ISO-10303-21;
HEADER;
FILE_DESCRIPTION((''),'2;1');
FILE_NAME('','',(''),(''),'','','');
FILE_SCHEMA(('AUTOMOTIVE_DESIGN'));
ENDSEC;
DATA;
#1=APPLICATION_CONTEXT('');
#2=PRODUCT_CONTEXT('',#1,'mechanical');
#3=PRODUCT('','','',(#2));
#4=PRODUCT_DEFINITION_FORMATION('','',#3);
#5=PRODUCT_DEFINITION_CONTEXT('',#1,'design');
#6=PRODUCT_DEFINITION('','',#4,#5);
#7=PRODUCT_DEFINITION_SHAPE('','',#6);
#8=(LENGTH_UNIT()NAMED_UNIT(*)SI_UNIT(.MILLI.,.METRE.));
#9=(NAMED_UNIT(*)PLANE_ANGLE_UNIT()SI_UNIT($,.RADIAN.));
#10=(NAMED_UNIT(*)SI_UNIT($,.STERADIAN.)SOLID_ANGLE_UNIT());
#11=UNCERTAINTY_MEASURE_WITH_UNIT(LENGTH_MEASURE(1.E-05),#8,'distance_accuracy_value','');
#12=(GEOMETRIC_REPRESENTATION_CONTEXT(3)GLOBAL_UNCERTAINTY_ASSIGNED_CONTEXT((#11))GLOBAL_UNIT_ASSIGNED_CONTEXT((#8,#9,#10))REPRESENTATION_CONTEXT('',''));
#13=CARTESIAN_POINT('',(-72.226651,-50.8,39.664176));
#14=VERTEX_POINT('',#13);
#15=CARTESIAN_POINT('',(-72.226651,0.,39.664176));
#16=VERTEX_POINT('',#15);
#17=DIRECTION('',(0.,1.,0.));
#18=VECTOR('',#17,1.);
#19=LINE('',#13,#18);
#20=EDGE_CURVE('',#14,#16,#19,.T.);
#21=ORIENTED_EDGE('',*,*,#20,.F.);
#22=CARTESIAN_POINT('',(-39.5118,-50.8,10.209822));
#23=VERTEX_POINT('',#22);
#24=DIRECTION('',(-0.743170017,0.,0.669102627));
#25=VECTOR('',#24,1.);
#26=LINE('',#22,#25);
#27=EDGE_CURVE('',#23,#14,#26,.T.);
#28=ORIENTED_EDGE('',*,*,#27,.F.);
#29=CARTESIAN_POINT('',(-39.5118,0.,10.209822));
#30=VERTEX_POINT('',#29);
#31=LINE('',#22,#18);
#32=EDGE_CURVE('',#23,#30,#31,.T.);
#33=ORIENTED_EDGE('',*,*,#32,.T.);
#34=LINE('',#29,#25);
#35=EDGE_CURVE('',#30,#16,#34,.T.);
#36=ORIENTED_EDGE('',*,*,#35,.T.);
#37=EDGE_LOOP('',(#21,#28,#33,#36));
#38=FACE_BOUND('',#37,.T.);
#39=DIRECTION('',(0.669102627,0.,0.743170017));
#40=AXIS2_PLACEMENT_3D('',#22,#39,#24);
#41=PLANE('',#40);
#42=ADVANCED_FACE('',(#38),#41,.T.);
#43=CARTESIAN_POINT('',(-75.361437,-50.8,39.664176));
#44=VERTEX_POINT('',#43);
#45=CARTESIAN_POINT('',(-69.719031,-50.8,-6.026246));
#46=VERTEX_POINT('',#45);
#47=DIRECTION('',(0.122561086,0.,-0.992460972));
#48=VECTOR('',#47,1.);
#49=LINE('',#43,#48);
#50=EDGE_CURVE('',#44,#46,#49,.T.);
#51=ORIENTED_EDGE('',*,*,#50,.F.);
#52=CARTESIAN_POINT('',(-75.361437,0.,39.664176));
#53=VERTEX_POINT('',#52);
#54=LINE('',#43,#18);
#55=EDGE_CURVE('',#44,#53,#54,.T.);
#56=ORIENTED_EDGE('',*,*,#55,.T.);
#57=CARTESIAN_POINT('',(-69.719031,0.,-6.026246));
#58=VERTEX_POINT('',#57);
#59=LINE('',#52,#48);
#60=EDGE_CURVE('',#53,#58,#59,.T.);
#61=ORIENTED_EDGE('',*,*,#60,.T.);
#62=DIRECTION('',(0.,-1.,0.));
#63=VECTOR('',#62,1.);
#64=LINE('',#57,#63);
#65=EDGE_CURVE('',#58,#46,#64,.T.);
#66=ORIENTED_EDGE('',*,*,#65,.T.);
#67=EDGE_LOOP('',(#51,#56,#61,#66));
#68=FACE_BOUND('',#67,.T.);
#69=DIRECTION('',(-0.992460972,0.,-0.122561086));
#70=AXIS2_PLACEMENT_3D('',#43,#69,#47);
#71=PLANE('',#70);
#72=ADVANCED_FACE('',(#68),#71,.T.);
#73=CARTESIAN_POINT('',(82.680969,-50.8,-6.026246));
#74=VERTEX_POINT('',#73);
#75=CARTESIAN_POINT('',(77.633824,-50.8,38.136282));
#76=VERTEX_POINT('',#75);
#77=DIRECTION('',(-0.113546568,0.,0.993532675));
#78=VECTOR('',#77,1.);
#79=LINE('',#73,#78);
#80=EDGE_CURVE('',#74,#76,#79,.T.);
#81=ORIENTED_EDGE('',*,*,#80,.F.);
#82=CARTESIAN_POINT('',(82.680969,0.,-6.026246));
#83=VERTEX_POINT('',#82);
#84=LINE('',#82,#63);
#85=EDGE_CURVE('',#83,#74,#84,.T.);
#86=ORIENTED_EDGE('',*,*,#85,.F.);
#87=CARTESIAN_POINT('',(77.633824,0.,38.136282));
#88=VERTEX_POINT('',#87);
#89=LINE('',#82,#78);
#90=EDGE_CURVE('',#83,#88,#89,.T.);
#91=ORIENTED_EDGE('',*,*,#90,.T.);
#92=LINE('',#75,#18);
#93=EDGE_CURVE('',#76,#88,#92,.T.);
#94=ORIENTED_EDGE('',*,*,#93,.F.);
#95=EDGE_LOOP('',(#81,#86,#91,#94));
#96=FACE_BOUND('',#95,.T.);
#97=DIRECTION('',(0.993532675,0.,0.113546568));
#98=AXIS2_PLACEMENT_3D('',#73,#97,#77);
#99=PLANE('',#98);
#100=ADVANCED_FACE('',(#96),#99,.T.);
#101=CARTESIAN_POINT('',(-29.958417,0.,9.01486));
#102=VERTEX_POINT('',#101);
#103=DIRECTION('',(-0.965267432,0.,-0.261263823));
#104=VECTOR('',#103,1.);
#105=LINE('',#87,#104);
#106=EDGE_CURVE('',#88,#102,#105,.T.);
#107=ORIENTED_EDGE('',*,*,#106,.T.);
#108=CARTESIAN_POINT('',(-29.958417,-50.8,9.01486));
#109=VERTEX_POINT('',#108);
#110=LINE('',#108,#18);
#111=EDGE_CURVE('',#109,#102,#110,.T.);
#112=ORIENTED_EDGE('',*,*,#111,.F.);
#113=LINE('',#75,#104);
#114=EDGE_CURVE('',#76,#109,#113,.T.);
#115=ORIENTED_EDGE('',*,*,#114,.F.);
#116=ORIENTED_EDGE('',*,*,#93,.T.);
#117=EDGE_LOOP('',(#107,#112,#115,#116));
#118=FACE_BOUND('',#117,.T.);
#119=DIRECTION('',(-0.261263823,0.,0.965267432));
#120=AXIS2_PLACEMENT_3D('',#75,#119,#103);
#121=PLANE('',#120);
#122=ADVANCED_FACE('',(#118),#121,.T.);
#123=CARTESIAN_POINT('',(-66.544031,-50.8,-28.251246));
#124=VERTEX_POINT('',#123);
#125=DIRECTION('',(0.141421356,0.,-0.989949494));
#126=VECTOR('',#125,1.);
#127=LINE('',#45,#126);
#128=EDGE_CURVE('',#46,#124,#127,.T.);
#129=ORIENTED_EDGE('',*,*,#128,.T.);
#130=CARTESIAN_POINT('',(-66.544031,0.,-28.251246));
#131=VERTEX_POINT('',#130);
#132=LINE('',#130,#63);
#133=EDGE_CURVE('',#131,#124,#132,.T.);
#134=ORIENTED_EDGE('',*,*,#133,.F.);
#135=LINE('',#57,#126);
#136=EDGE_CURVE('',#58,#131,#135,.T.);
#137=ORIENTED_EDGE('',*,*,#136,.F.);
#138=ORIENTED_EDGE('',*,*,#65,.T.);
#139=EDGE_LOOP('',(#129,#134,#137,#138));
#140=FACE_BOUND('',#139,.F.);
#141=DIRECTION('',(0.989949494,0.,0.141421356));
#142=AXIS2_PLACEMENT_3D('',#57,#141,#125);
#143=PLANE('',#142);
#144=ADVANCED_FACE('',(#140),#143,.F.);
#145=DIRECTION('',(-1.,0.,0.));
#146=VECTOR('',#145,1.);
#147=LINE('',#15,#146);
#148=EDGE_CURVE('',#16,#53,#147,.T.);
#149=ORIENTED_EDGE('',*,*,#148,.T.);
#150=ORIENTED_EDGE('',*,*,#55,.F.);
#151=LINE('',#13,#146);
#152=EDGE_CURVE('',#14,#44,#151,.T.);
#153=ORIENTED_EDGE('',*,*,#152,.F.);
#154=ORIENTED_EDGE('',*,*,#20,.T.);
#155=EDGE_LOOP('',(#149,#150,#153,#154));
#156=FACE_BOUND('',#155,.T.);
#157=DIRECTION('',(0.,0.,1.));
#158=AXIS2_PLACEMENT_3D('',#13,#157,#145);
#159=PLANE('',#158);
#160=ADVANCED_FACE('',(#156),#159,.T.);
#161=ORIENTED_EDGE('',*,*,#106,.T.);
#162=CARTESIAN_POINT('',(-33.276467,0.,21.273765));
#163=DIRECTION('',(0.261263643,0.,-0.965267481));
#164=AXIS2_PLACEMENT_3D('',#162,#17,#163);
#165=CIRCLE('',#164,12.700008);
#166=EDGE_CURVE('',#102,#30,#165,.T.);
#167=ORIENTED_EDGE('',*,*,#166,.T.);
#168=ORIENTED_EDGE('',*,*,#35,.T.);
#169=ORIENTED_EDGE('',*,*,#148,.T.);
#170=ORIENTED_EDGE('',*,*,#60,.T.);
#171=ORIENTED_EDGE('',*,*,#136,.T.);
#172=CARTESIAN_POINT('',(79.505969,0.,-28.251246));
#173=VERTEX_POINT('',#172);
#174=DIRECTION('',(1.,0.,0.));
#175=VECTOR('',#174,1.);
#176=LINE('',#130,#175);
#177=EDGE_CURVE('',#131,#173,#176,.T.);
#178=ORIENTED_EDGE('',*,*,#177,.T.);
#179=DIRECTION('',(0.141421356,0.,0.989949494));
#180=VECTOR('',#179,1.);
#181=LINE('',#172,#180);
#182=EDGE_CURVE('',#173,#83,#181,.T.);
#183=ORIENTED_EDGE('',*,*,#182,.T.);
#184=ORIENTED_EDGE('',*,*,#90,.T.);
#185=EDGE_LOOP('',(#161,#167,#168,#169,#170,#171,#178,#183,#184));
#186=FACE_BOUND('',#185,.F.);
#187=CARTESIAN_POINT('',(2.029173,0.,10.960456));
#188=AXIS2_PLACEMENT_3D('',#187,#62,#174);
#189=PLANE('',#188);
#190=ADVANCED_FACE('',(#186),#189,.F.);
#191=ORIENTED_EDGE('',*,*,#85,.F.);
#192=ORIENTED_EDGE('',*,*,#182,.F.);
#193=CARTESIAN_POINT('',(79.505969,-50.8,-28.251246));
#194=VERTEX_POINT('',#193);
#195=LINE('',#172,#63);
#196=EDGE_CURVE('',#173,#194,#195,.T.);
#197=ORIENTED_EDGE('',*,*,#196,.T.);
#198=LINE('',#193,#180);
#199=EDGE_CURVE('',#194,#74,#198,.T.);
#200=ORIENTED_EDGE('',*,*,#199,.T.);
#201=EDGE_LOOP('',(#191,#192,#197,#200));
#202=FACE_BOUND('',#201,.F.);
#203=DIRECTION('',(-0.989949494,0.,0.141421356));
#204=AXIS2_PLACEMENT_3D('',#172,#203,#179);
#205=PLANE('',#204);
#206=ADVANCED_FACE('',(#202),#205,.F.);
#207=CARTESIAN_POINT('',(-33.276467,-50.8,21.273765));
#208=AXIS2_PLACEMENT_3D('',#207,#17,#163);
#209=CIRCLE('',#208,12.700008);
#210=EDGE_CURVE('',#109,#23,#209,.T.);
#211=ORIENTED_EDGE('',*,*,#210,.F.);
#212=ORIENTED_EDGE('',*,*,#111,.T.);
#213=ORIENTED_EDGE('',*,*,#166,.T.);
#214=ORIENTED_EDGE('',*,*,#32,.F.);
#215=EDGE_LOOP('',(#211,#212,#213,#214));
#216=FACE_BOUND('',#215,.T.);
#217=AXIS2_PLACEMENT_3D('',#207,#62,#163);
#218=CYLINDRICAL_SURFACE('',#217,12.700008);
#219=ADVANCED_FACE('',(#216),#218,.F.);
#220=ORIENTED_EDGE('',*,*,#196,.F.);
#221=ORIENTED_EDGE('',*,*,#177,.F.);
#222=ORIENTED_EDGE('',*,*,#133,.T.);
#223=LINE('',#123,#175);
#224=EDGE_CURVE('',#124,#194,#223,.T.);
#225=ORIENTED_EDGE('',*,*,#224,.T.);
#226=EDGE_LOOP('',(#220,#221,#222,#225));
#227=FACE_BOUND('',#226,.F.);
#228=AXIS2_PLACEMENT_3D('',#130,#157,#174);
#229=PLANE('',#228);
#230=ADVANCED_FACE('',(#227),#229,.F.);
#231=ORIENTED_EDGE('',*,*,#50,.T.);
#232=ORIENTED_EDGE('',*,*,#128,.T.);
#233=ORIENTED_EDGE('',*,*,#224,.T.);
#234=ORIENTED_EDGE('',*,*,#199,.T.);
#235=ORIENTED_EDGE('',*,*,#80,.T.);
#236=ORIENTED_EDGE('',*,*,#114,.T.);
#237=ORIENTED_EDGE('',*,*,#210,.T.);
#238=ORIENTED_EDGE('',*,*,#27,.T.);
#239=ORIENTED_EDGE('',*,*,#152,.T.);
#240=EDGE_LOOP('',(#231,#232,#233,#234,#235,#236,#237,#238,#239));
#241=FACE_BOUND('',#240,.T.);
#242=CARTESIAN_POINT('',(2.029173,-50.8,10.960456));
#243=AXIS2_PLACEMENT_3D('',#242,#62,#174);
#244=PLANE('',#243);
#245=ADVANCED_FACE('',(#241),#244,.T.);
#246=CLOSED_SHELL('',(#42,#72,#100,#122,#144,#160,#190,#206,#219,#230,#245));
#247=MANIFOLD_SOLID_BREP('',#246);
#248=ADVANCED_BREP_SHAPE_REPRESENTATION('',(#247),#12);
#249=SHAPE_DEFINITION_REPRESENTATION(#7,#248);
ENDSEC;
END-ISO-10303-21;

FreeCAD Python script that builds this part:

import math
import FreeCAD as App
import Part
import Sketcher
from FreeCAD import Vector
Q = App.Units.Quantity

doc = App.newDocument("Part")
params = doc.addObject("Spreadsheet::Sheet", "Params")
for row, (alias, value) in enumerate([
    ("sketch1_width", "6 in"),
    ("sketch1_width2", "5.75 in"),
    ("pad1_length", "2 in"),
    ("sketch2_width", "6 in"),
    ("sketch2_length", "1.75 in"),
    ("sketch2_length2", "1.8125 in"),
    ("pad2_length", "2 in"),
], start=1):
    params.set(f"A{row}", alias)
    params.set(f"B{row}", "=" + value)
    params.setAlias(f"B{row}", alias)

body = doc.addObject("PartDesign::Body", "Body")

# Sketch on XZ plane
sketch1 = body.newObject("Sketcher::SketchObject", "Sketch")
sketch1.AttachmentSupport = (doc.getObject("XZ_Plane"), [""])
sketch1.MapMode = "FlatFace"
sketch1.addGeometry([
    Part.LineSegment(Vector(83, -6, 0), Vector(-70, -6, 0)),
    Part.LineSegment(Vector(-70, -6, 0), Vector(-67, -28, 0)),
    Part.LineSegment(Vector(-67, -28, 0), Vector(80, -28, 0)),
    Part.LineSegment(Vector(80, -28, 0), Vector(83, -6, 0)),
], False)
sketch1.addConstraint([
    Sketcher.Constraint("Coincident", 0, 2, 1, 1),
    Sketcher.Constraint("Coincident", 1, 2, 2, 1),
    Sketcher.Constraint("Coincident", 2, 2, 3, 1),
    Sketcher.Constraint("Coincident", 3, 2, 0, 1),
    Sketcher.Constraint("Horizontal", 0),
    Sketcher.Constraint("Horizontal", 2),
    Sketcher.Constraint("Equal", 1, 3),
    Sketcher.Constraint("DistanceX", 0, 2, 0, 1, Q("6 in")),
    Sketcher.Constraint("DistanceX", 2, 1, 2, 2, Q("5.75 in")),
    Sketcher.Constraint("DistanceY", 1, 2, 0, 2, Q("0.875 in")),
    Sketcher.Constraint("DistanceX", 0, 2, -1, 1, 69.719031),
    Sketcher.Constraint("DistanceY", 0, 2, -1, 1, 6.026246),
])
sketch1.setExpression("Constraints[7]", "Params.sketch1_width")
sketch1.setExpression("Constraints[8]", "Params.sketch1_width2")
pad1 = body.newObject("PartDesign::Pad", "Pad")
pad1.Profile = sketch1
pad1.setExpression("Length", "Params.pad1_length")

# Sketch on XZ plane
sketch2 = body.newObject("Sketcher::SketchObject", "Sketch001")
sketch2.AttachmentSupport = (doc.getObject("XZ_Plane"), [""])
sketch2.MapMode = "FlatFace"
sketch2.AttachmentOffset = App.Placement(Vector(0, 0, 2 * 25.4), App.Rotation())
sketch2.addGeometry([
    Part.LineSegment(Vector(-69.7, -6, 0), Vector(82.7, -6, 0)),  # 0
    Part.LineSegment(Vector(82.7, -6, 0), Vector(77.6, 38.1, 0)),  # 1
    Part.LineSegment(Vector(77.6, 38.1, 0), Vector(-30, 9, 0)),  # 2
    Part.ArcOfCircle(Part.Circle(Vector(-33.3, 21.3, 0), Vector(0, 0, 1), 12.7), math.radians(-119), math.radians(-75)),  # 3
    Part.LineSegment(Vector(-39.5, 10.2, 0), Vector(-72.2, 39.7, 0)),  # 4
    Part.LineSegment(Vector(-72.2, 39.7, 0), Vector(-75.4, 39.7, 0)),  # 5
    Part.LineSegment(Vector(-75.4, 39.7, 0), Vector(-69.7, -6, 0)),  # 6
], False)
sketch2.addConstraint([
    Sketcher.Constraint("Coincident", 0, 2, 1, 1),
    Sketcher.Constraint("Coincident", 1, 2, 2, 1),
    Sketcher.Constraint("Tangent", 2, 2, 3, 2),
    Sketcher.Constraint("Coincident", 3, 1, 4, 1),
    Sketcher.Constraint("Coincident", 4, 2, 5, 1),
    Sketcher.Constraint("Coincident", 5, 2, 6, 1),
    Sketcher.Constraint("Coincident", 6, 2, 0, 1),
    Sketcher.Constraint("Horizontal", 0),
    Sketcher.Constraint("Horizontal", 5),
    Sketcher.Constraint("DistanceX", 0, 1, 0, 2, Q("6 in")),
    Sketcher.Constraint("Distance", 1, Q("1.75 in")),
    Sketcher.Constraint("Distance", 6, Q("1.8125 in")),
    Sketcher.Constraint("Radius", 3, 12.700008),
    Sketcher.Constraint("DistanceX", 3, 1, -1, 1, 39.5118),
    Sketcher.Constraint("Distance", 2, 111.46366),
    Sketcher.Constraint("DistanceX", 5, 2, 5, 1, 3.134786),
    Sketcher.Constraint("DistanceX", -1, 1, 0, 2, 82.680969),
    Sketcher.Constraint("DistanceY", -1, 1, 2, 2, 9.01486),
    Sketcher.Constraint("DistanceY", -1, 1, 3, 1, 10.209822),
    Sketcher.Constraint("DistanceX", 4, 2, -1, 1, 72.226651),
    Sketcher.Constraint("DistanceY", 0, 2, 3, 3, 27.300011),
])
sketch2.setExpression("Constraints[9]", "Params.sketch2_width")
sketch2.setExpression("Constraints[10]", "Params.sketch2_length")
sketch2.setExpression("Constraints[11]", "Params.sketch2_length2")
pad2 = body.newObject("PartDesign::Pad", "Pad001")
pad2.Profile = sketch2
pad2.setExpression("Length", "Params.pad2_length")
pad2.Reversed = True

doc.recompute()
